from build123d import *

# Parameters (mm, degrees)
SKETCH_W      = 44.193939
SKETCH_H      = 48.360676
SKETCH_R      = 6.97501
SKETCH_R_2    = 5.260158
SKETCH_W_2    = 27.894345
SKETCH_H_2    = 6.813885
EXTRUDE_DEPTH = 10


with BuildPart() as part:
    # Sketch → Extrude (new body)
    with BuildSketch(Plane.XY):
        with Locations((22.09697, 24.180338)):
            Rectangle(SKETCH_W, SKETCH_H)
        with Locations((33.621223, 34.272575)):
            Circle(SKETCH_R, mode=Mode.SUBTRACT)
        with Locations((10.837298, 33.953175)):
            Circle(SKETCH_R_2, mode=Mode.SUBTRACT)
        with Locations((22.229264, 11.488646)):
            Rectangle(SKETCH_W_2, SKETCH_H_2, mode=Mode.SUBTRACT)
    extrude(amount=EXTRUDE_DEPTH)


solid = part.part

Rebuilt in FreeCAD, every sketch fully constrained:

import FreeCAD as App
import Part
import Sketcher
from FreeCAD import Vector
Q = App.Units.Quantity


def add_polygon(sketch, points):
    """Adds a closed chain of lines whose ends are joined by coincident constraints."""
    first, n = sketch.GeometryCount, len(points)
    for a, b in zip(points, points[1:] + points[:1]):
        sketch.addGeometry(Part.LineSegment(App.Vector(*a, 0), App.Vector(*b, 0)), False)
    for i in range(n):
        sketch.addConstraint(Sketcher.Constraint("Coincident", first + i, 2, first + (i + 1) % n, 1))

doc = App.newDocument("Part")
body = doc.addObject("PartDesign::Body", "Body")

# Sketch on XY plane
sketch1 = body.newObject("Sketcher::SketchObject", "Sketch")
sketch1.AttachmentSupport = (doc.getObject("XY_Plane"), [""])
sketch1.MapMode = "FlatFace"
add_polygon(sketch1, [(0, 48), (0, 0), (44, 0), (44, 48)])  # lines 0-3
add_polygon(sketch1, [(36, 8), (8, 8), (8, 15), (36, 15)])  # lines 4-7
sketch1.addGeometry(Part.Circle(Vector(11, 34, 0), Vector(0, 0, 1), 5), False)  # 8
sketch1.addGeometry(Part.Circle(Vector(34, 34, 0), Vector(0, 0, 1), 7), False)  # 9
sketch1.addConstraint(Sketcher.Constraint("Vertical", 0))
sketch1.addConstraint(Sketcher.Constraint("Horizontal", 1))
sketch1.addConstraint(Sketcher.Constraint("Vertical", 2))
sketch1.addConstraint(Sketcher.Constraint("Horizontal", 3))
sketch1.addConstraint(Sketcher.Constraint("Horizontal", 4))
sketch1.addConstraint(Sketcher.Constraint("Vertical", 5))
sketch1.addConstraint(Sketcher.Constraint("Horizontal", 6))
sketch1.addConstraint(Sketcher.Constraint("Vertical", 7))
sketch1.addConstraint(Sketcher.Constraint("Coincident", 0, 2, -1, 1))
sketch1.addConstraint(Sketcher.Constraint("Diameter", 9, Q("13.95002 mm")))
sketch1.addConstraint(Sketcher.Constraint("Diameter", 8, Q("10.520316 mm")))
sketch1.addConstraint(Sketcher.Constraint("DistanceX", 1, 1, 1, 2, Q("44.193939 mm")))
sketch1.addConstraint(Sketcher.Constraint("DistanceY", 8, 3, 9, 3, Q("0.3194 mm")))
sketch1.addConstraint(Sketcher.Constraint("DistanceY", 9, 3, 2, 2, Q("14.088101 mm")))
sketch1.addConstraint(Sketcher.Constraint("DistanceX", 4, 2, 4, 1, Q("27.894345 mm")))
sketch1.addConstraint(Sketcher.Constraint("DistanceY", 0, 2, 0, 1, Q("48.360676 mm")))
sketch1.addConstraint(Sketcher.Constraint("DistanceY", 5, 1, 5, 2, Q("6.813885 mm")))
sketch1.addConstraint(Sketcher.Constraint("DistanceX", -1, 1, 4, 2, Q("8.282091 mm")))
sketch1.addConstraint(Sketcher.Constraint("DistanceY", -1, 1, 5, 2, Q("14.895589 mm")))
sketch1.addConstraint(Sketcher.Constraint("DistanceX", 8, 3, 1, 2, Q("33.356641 mm")))
sketch1.addConstraint(Sketcher.Constraint("DistanceX", 4, 2, 9, 3, Q("25.339132 mm")))
pad1 = body.newObject("PartDesign::Pad", "Pad")
pad1.Profile = sketch1
pad1.Length = 10

doc.recompute()
